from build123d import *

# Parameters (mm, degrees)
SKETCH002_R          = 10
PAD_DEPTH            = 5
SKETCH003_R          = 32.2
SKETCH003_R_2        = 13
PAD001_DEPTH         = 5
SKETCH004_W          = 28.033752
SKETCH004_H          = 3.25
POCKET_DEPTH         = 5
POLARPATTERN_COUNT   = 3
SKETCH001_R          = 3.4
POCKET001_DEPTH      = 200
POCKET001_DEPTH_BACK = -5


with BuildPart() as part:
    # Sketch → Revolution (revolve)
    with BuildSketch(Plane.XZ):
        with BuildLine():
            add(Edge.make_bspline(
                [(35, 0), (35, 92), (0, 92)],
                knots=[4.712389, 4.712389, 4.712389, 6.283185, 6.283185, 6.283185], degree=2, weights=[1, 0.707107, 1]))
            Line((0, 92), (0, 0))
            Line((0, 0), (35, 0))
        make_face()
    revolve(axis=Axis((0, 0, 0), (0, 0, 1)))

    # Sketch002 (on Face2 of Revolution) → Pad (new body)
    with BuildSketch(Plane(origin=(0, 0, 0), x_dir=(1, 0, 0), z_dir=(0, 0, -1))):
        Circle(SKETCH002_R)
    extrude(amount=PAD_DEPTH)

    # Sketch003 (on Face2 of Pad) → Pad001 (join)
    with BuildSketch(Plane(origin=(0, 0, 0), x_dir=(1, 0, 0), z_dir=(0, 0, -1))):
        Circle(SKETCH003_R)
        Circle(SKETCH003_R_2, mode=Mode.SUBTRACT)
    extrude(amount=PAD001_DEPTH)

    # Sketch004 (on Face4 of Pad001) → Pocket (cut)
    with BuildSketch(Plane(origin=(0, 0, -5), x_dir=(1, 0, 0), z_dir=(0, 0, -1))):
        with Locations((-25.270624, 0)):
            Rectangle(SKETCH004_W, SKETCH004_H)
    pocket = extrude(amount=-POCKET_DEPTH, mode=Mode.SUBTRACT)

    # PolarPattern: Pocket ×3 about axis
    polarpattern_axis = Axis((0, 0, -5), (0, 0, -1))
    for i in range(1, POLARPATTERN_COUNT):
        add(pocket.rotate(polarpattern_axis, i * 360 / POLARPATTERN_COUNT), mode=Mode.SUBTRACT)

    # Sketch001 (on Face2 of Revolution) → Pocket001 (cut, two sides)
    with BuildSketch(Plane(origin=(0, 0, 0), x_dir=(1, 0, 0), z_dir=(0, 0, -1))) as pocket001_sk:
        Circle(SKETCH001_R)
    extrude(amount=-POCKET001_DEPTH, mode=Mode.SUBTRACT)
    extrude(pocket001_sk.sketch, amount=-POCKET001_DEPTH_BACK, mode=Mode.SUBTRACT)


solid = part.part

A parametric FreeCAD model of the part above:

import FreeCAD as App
import Part
import Sketcher

doc = App.newDocument("Part")
body = doc.addObject("PartDesign::Body", "Body")

# Sketch on XZ plane
sketch1 = body.newObject("Sketcher::SketchObject", "Sketch")
sketch1.AttachmentSupport = (doc.getObject("XZ_Plane"), [""])
sketch1.MapMode = "FlatFace"
sketch1.addGeometry(Part.BSplineCurve([App.Vector(35, 0, 0), App.Vector(35, 92, 0), App.Vector(0, 92, 0)], [3, 3], [4.712389, 6.283185], False, 2, [1, 0.707107, 1], False), False)
sketch1.addGeometry(Part.LineSegment(App.Vector(0, 92, 0), App.Vector(0, 0, 0)), False)
sketch1.addGeometry(Part.LineSegment(App.Vector(0, 0, 0), App.Vector(35, 0, 0)), False)
sketch1.addConstraint(Sketcher.Constraint("Block", 0))
sketch1.addConstraint(Sketcher.Constraint("Coincident", 0, 2, 1, 1))
sketch1.addConstraint(Sketcher.Constraint("Coincident", 1, 2, 2, 1))
sketch1.addConstraint(Sketcher.Constraint("Coincident", 2, 2, 0, 1))
sketch1.addConstraint(Sketcher.Constraint("Vertical", 1))
sketch1.addConstraint(Sketcher.Constraint("Horizontal", 2))
revolution = body.newObject("PartDesign::Revolution", "Revolution")
revolution.Profile = sketch1
revolution.ReferenceAxis = (sketch1, ["V_Axis"])
revolution.Angle = 360

# Sketch on XY plane
sketch2 = body.newObject("Sketcher::SketchObject", "Sketch001")
sketch2.AttachmentSupport = (doc.getObject("XY_Plane"), [""])
sketch2.MapMode = "FlatFace"
sketch2.addGeometry(Part.Circle(App.Vector(0, 0, 0), App.Vector(0, 0, 1), 10), False)
sketch2.addConstraint(Sketcher.Constraint("Coincident", 0, 3, -1, 1))
sketch2.addConstraint(Sketcher.Constraint("Diameter", 0, 20.0))
pad1 = body.newObject("PartDesign::Pad", "Pad")
pad1.Profile = sketch2
pad1.Length = 5
pad1.Reversed = True

# Sketch on XY plane
sketch3 = body.newObject("Sketcher::SketchObject", "Sketch002")
sketch3.AttachmentSupport = (doc.getObject("XY_Plane"), [""])
sketch3.MapMode = "FlatFace"
sketch3.addGeometry(Part.Circle(App.Vector(0, 0, 0), App.Vector(0, 0, 1), 32), False)
sketch3.addGeometry(Part.Circle(App.Vector(0, 0, 0), App.Vector(0, 0, 1), 13), False)
sketch3.addConstraint(Sketcher.Constraint("Coincident", 0, 3, -1, 1))
sketch3.addConstraint(Sketcher.Constraint("Coincident", 1, 3, -1, 1))
sketch3.addConstraint(Sketcher.Constraint("Diameter", 1, 26.0))
sketch3.addConstraint(Sketcher.Constraint("Diameter", 0, 64.4))
pad2 = body.newObject("PartDesign::Pad", "Pad001")
pad2.Profile = sketch3
pad2.Length = 5
pad2.Reversed = True

# Sketch on XY plane
sketch4 = body.newObject("Sketcher::SketchObject", "Sketch003")
sketch4.AttachmentSupport = (doc.getObject("XY_Plane"), [""])
sketch4.MapMode = "FlatFace"
sketch4.AttachmentOffset = App.Placement(App.Vector(0, 0, -5), App.Rotation())
sketch4.addGeometry(Part.LineSegment(App.Vector(-39.3, -1.6, 0), App.Vector(-39.3, 1.6, 0)), False)
sketch4.addGeometry(Part.LineSegment(App.Vector(-39.3, 1.6, 0), App.Vector(-11.3, 1.6, 0)), False)
sketch4.addGeometry(Part.LineSegment(App.Vector(-11.3, 1.6, 0), App.Vector(-11.3, -1.6, 0)), False)
sketch4.addGeometry(Part.LineSegment(App.Vector(-11.3, -1.6, 0), App.Vector(-39.3, -1.6, 0)), False)
sketch4.addConstraint(Sketcher.Constraint("Coincident", 0, 2, 1, 1))
sketch4.addConstraint(Sketcher.Constraint("Coincident", 1, 2, 2, 1))
sketch4.addConstraint(Sketcher.Constraint("Coincident", 2, 2, 3, 1))
sketch4.addConstraint(Sketcher.Constraint("Coincident", 3, 2, 0, 1))
sketch4.addConstraint(Sketcher.Constraint("Vertical", 0))
sketch4.addConstraint(Sketcher.Constraint("Horizontal", 1))
sketch4.addConstraint(Sketcher.Constraint("Vertical", 2))
sketch4.addConstraint(Sketcher.Constraint("Horizontal", 3))
sketch4.addConstraint(Sketcher.Constraint("DistanceY", 0, 1, 0, 2, 3.25))
sketch4.addConstraint(Sketcher.Constraint("DistanceY", -1, 1, 0, 2, 1.625))
sketch4.addConstraint(Sketcher.Constraint("DistanceX", 1, 1, 1, 2, 28.033752))
sketch4.addConstraint(Sketcher.Constraint("DistanceX", 0, 2, -1, 1, 39.2875))
pocket1 = body.newObject("PartDesign::Pocket", "Pocket")
pocket1.Profile = sketch4
pocket1.Length = 5
pocket1.Reversed = True
doc.recompute()

polarpattern = body.newObject("PartDesign::PolarPattern", "PolarPattern")
polarpattern.Originals = [pocket1]
polarpattern.Axis = (doc.getObject("Z_Axis"), [""])
polarpattern.Angle = 360
polarpattern.Occurrences = 3
body.Tip = polarpattern

# Sketch on XY plane
sketch5 = body.newObject("Sketcher::SketchObject", "Sketch004")
sketch5.AttachmentSupport = (doc.getObject("XY_Plane"), [""])
sketch5.MapMode = "FlatFace"
sketch5.addGeometry(Part.Circle(App.Vector(0, 0, 0), App.Vector(0, 0, 1), 3.4), False)
sketch5.addConstraint(Sketcher.Constraint("Coincident", 0, 3, -1, 1))
sketch5.addConstraint(Sketcher.Constraint("Diameter", 0, 6.8))
pocket2 = body.newObject("PartDesign::Pocket", "Pocket001")
pocket2.Profile = sketch5
pocket2.Type = "ThroughAll"
pocket2.Midplane = True

doc.recompute()
